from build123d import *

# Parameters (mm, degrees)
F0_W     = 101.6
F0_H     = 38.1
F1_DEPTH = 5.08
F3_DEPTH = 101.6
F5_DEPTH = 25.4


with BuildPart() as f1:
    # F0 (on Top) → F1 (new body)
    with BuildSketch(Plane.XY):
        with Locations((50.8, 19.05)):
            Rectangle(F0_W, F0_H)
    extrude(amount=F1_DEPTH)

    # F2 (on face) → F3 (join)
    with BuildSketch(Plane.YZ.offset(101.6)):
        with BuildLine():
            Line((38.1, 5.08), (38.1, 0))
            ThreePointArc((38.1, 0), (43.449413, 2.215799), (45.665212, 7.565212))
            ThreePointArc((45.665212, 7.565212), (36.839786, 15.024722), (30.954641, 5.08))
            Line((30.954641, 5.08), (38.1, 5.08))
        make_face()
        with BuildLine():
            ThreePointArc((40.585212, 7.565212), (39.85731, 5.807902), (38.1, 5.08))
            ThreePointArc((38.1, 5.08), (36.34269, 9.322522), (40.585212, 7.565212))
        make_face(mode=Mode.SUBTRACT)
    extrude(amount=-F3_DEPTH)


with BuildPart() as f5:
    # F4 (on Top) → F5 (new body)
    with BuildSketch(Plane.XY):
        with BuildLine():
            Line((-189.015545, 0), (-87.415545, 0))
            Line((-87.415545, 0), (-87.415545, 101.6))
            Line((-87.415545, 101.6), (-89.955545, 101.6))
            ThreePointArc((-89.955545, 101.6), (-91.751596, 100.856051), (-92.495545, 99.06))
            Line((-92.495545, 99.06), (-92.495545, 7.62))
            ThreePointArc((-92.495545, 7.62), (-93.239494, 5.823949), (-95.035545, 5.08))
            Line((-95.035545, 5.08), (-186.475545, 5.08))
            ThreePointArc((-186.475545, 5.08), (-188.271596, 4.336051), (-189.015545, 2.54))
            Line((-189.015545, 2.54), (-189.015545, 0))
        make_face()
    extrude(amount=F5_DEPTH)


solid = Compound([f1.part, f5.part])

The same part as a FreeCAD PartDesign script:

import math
import FreeCAD as App
import Part
import Sketcher
Q = App.Units.Quantity


def add_polygon(sketch, points):
    """Adds a closed chain of lines whose ends are joined by coincident constraints."""
    first, n = sketch.GeometryCount, len(points)
    for a, b in zip(points, points[1:] + points[:1]):
        sketch.addGeometry(Part.LineSegment(App.Vector(*a, 0), App.Vector(*b, 0)), False)
    for i in range(n):
        sketch.addConstraint(Sketcher.Constraint("Coincident", first + i, 2, first + (i + 1) % n, 1))

doc = App.newDocument("Part")
body = doc.addObject("PartDesign::Body", "Body")

# Sketch on XY plane
sketch1 = body.newObject("Sketcher::SketchObject", "Sketch")
sketch1.AttachmentSupport = (doc.getObject("XY_Plane"), [""])
sketch1.MapMode = "FlatFace"
add_polygon(sketch1, [(0, 38), (0, 0), (102, 0), (102, 38)])  # lines 0-3
sketch1.addConstraint([
    Sketcher.Constraint("Vertical", 0),
    Sketcher.Constraint("Horizontal", 1),
    Sketcher.Constraint("Vertical", 2),
    Sketcher.Constraint("Horizontal", 3),
    Sketcher.Constraint("Coincident", 0, 2, -1, 1),
    Sketcher.Constraint("DistanceX", 1, 1, 1, 2, Q("4 in")),
    Sketcher.Constraint("DistanceY", 0, 2, 0, 1, Q("1.5 in")),
])
pad1 = body.newObject("PartDesign::Pad", "Pad")
pad1.Profile = sketch1
pad1.Length = Q("0.2 in")

# Sketch on YZ plane
sketch2 = body.newObject("Sketcher::SketchObject", "Sketch001")
sketch2.AttachmentSupport = (doc.getObject("YZ_Plane"), [""])
sketch2.MapMode = "FlatFace"
sketch2.AttachmentOffset = App.Placement(App.Vector(0, 0, 4 * 25.4), App.Rotation())
sketch2.addGeometry([
    Part.ArcOfCircle(Part.Circle(App.Vector(38.1, 7.6, 0), App.Vector(0, 0, 1), 7.6), math.radians(-90), math.radians(0)),  # 0
    Part.ArcOfCircle(Part.Circle(App.Vector(38.1, 7.6, 0), App.Vector(0, 0, 1), 7.6), math.radians(0), math.radians(199)),  # 1
    Part.LineSegment(App.Vector(31, 5.1, 0), App.Vector(38.1, 5.1, 0)),  # 2
    Part.LineSegment(App.Vector(38.1, 5.1, 0), App.Vector(38.1, 0, 0)),  # 3
    Part.ArcOfCircle(Part.Circle(App.Vector(38.1, 7.6, 0), App.Vector(0, 0, 1), 2.5), math.radians(-90), math.radians(0)),  # 4
    Part.ArcOfCircle(Part.Circle(App.Vector(38.1, 7.6, 0), App.Vector(0, 0, 1), 2.5), math.radians(0), math.radians(270)),  # 5
], False)
sketch2.addConstraint([
    Sketcher.Constraint("Tangent", 0, 2, 1, 1),
    Sketcher.Constraint("Coincident", 1, 2, 2, 1),
    Sketcher.Constraint("Coincident", 2, 2, 3, 1),
    Sketcher.Constraint("Coincident", 3, 2, 0, 1),
    Sketcher.Constraint("Tangent", 4, 1, 5, 2),
    Sketcher.Constraint("Coincident", 5, 1, 4, 2),
    Sketcher.Constraint("Horizontal", 2),
    Sketcher.Constraint("Vertical", 3),
    Sketcher.Constraint("Coincident", 4, 3, 0, 3),
    Sketcher.Constraint("Coincident", 4, 1, 2, 2),
    Sketcher.Constraint("Equal", 0, 1),
    Sketcher.Constraint("PointOnObject", 3, 2, -1),
    Sketcher.Constraint("Horizontal", 5, 3, 0, 2),
    Sketcher.Constraint("Horizontal", 0, 2, 5, 1),
    Sketcher.Constraint("Vertical", 5, 3, 2, 2),
    Sketcher.Constraint("DistanceY", 3, 2, 3, 1, Q("0.2 in")),
    Sketcher.Constraint("DistanceX", -1, 1, 0, 3, Q("1.5 in")),
    Sketcher.Constraint("Radius", 0, 7.565211),
])
pad2 = body.newObject("PartDesign::Pad", "Pad001")
pad2.Profile = sketch2
pad2.Length = Q("4 in")
pad2.Reversed = True
body2 = doc.addObject("PartDesign::Body", "Body001")

# Sketch on XY plane
sketch3 = body2.newObject("Sketcher::SketchObject", "Sketch002")
sketch3.AttachmentSupport = (doc.getObject("XY_Plane001"), [""])
sketch3.MapMode = "FlatFace"
sketch3.addGeometry([
    Part.LineSegment(App.Vector(-189, 0, 0), App.Vector(-87.4, 0, 0)),  # 0
    Part.LineSegment(App.Vector(-87.4, 0, 0), App.Vector(-87.4, 101.6, 0)),  # 1
    Part.LineSegment(App.Vector(-87.4, 101.6, 0), App.Vector(-90, 101.6, 0)),  # 2
    Part.ArcOfCircle(Part.Circle(App.Vector(-90, 99.1, 0), App.Vector(0, 0, 1), 2.5), math.radians(90), math.radians(180)),  # 3
    Part.LineSegment(App.Vector(-92.5, 99.1, 0), App.Vector(-92.5, 7.6, 0)),  # 4
    Part.ArcOfCircle(Part.Circle(App.Vector(-95, 7.6, 0), App.Vector(0, 0, 1), 2.5), math.radians(-90), math.radians(0)),  # 5
    Part.LineSegment(App.Vector(-95, 5.1, 0), App.Vector(-186.5, 5.1, 0)),  # 6
    Part.ArcOfCircle(Part.Circle(App.Vector(-186.5, 2.5, 0), App.Vector(0, 0, 1), 2.5), math.radians(90), math.radians(180)),  # 7
    Part.LineSegment(App.Vector(-189, 2.5, 0), App.Vector(-189, 0, 0)),  # 8
], False)
sketch3.addConstraint([
    Sketcher.Constraint("Coincident", 0, 2, 1, 1),
    Sketcher.Constraint("Coincident", 1, 2, 2, 1),
    Sketcher.Constraint("Tangent", 2, 2, 3, 1),
    Sketcher.Constraint("Tangent", 3, 2, 4, 1),
    Sketcher.Constraint("Tangent", 4, 2, 5, 2),
    Sketcher.Constraint("Tangent", 5, 1, 6, 1),
    Sketcher.Constraint("Tangent", 6, 2, 7, 1),
    Sketcher.Constraint("Tangent", 7, 2, 8, 1),
    Sketcher.Constraint("Coincident", 8, 2, 0, 1),
    Sketcher.Constraint("Horizontal", 0),
    Sketcher.Constraint("Vertical", 1),
    Sketcher.Constraint("Horizontal", 2),
    Sketcher.Constraint("Vertical", 4),
    Sketcher.Constraint("Horizontal", 6),
    Sketcher.Constraint("Vertical", 8),
    Sketcher.Constraint("Equal", 3, 5),
    Sketcher.Constraint("Equal", 5, 7),
    Sketcher.Constraint("PointOnObject", 0, 2, -1),
    Sketcher.Constraint("Equal", 0, 1),
    Sketcher.Constraint("Equal", 6, 4),
    Sketcher.Constraint("Radius", 3, Q("0.1 in")),
    Sketcher.Constraint("DistanceX", 0, 1, 0, 2, Q("4 in")),
    Sketcher.Constraint("DistanceX", 2, 2, 2, 1, Q("0.1 in")),
    Sketcher.Constraint("DistanceX", 3, 3, -1, 1, 89.955544),
])
pad3 = body2.newObject("PartDesign::Pad", "Pad002")
pad3.Profile = sketch3
pad3.Length = Q("1 in")

doc.recompute()
